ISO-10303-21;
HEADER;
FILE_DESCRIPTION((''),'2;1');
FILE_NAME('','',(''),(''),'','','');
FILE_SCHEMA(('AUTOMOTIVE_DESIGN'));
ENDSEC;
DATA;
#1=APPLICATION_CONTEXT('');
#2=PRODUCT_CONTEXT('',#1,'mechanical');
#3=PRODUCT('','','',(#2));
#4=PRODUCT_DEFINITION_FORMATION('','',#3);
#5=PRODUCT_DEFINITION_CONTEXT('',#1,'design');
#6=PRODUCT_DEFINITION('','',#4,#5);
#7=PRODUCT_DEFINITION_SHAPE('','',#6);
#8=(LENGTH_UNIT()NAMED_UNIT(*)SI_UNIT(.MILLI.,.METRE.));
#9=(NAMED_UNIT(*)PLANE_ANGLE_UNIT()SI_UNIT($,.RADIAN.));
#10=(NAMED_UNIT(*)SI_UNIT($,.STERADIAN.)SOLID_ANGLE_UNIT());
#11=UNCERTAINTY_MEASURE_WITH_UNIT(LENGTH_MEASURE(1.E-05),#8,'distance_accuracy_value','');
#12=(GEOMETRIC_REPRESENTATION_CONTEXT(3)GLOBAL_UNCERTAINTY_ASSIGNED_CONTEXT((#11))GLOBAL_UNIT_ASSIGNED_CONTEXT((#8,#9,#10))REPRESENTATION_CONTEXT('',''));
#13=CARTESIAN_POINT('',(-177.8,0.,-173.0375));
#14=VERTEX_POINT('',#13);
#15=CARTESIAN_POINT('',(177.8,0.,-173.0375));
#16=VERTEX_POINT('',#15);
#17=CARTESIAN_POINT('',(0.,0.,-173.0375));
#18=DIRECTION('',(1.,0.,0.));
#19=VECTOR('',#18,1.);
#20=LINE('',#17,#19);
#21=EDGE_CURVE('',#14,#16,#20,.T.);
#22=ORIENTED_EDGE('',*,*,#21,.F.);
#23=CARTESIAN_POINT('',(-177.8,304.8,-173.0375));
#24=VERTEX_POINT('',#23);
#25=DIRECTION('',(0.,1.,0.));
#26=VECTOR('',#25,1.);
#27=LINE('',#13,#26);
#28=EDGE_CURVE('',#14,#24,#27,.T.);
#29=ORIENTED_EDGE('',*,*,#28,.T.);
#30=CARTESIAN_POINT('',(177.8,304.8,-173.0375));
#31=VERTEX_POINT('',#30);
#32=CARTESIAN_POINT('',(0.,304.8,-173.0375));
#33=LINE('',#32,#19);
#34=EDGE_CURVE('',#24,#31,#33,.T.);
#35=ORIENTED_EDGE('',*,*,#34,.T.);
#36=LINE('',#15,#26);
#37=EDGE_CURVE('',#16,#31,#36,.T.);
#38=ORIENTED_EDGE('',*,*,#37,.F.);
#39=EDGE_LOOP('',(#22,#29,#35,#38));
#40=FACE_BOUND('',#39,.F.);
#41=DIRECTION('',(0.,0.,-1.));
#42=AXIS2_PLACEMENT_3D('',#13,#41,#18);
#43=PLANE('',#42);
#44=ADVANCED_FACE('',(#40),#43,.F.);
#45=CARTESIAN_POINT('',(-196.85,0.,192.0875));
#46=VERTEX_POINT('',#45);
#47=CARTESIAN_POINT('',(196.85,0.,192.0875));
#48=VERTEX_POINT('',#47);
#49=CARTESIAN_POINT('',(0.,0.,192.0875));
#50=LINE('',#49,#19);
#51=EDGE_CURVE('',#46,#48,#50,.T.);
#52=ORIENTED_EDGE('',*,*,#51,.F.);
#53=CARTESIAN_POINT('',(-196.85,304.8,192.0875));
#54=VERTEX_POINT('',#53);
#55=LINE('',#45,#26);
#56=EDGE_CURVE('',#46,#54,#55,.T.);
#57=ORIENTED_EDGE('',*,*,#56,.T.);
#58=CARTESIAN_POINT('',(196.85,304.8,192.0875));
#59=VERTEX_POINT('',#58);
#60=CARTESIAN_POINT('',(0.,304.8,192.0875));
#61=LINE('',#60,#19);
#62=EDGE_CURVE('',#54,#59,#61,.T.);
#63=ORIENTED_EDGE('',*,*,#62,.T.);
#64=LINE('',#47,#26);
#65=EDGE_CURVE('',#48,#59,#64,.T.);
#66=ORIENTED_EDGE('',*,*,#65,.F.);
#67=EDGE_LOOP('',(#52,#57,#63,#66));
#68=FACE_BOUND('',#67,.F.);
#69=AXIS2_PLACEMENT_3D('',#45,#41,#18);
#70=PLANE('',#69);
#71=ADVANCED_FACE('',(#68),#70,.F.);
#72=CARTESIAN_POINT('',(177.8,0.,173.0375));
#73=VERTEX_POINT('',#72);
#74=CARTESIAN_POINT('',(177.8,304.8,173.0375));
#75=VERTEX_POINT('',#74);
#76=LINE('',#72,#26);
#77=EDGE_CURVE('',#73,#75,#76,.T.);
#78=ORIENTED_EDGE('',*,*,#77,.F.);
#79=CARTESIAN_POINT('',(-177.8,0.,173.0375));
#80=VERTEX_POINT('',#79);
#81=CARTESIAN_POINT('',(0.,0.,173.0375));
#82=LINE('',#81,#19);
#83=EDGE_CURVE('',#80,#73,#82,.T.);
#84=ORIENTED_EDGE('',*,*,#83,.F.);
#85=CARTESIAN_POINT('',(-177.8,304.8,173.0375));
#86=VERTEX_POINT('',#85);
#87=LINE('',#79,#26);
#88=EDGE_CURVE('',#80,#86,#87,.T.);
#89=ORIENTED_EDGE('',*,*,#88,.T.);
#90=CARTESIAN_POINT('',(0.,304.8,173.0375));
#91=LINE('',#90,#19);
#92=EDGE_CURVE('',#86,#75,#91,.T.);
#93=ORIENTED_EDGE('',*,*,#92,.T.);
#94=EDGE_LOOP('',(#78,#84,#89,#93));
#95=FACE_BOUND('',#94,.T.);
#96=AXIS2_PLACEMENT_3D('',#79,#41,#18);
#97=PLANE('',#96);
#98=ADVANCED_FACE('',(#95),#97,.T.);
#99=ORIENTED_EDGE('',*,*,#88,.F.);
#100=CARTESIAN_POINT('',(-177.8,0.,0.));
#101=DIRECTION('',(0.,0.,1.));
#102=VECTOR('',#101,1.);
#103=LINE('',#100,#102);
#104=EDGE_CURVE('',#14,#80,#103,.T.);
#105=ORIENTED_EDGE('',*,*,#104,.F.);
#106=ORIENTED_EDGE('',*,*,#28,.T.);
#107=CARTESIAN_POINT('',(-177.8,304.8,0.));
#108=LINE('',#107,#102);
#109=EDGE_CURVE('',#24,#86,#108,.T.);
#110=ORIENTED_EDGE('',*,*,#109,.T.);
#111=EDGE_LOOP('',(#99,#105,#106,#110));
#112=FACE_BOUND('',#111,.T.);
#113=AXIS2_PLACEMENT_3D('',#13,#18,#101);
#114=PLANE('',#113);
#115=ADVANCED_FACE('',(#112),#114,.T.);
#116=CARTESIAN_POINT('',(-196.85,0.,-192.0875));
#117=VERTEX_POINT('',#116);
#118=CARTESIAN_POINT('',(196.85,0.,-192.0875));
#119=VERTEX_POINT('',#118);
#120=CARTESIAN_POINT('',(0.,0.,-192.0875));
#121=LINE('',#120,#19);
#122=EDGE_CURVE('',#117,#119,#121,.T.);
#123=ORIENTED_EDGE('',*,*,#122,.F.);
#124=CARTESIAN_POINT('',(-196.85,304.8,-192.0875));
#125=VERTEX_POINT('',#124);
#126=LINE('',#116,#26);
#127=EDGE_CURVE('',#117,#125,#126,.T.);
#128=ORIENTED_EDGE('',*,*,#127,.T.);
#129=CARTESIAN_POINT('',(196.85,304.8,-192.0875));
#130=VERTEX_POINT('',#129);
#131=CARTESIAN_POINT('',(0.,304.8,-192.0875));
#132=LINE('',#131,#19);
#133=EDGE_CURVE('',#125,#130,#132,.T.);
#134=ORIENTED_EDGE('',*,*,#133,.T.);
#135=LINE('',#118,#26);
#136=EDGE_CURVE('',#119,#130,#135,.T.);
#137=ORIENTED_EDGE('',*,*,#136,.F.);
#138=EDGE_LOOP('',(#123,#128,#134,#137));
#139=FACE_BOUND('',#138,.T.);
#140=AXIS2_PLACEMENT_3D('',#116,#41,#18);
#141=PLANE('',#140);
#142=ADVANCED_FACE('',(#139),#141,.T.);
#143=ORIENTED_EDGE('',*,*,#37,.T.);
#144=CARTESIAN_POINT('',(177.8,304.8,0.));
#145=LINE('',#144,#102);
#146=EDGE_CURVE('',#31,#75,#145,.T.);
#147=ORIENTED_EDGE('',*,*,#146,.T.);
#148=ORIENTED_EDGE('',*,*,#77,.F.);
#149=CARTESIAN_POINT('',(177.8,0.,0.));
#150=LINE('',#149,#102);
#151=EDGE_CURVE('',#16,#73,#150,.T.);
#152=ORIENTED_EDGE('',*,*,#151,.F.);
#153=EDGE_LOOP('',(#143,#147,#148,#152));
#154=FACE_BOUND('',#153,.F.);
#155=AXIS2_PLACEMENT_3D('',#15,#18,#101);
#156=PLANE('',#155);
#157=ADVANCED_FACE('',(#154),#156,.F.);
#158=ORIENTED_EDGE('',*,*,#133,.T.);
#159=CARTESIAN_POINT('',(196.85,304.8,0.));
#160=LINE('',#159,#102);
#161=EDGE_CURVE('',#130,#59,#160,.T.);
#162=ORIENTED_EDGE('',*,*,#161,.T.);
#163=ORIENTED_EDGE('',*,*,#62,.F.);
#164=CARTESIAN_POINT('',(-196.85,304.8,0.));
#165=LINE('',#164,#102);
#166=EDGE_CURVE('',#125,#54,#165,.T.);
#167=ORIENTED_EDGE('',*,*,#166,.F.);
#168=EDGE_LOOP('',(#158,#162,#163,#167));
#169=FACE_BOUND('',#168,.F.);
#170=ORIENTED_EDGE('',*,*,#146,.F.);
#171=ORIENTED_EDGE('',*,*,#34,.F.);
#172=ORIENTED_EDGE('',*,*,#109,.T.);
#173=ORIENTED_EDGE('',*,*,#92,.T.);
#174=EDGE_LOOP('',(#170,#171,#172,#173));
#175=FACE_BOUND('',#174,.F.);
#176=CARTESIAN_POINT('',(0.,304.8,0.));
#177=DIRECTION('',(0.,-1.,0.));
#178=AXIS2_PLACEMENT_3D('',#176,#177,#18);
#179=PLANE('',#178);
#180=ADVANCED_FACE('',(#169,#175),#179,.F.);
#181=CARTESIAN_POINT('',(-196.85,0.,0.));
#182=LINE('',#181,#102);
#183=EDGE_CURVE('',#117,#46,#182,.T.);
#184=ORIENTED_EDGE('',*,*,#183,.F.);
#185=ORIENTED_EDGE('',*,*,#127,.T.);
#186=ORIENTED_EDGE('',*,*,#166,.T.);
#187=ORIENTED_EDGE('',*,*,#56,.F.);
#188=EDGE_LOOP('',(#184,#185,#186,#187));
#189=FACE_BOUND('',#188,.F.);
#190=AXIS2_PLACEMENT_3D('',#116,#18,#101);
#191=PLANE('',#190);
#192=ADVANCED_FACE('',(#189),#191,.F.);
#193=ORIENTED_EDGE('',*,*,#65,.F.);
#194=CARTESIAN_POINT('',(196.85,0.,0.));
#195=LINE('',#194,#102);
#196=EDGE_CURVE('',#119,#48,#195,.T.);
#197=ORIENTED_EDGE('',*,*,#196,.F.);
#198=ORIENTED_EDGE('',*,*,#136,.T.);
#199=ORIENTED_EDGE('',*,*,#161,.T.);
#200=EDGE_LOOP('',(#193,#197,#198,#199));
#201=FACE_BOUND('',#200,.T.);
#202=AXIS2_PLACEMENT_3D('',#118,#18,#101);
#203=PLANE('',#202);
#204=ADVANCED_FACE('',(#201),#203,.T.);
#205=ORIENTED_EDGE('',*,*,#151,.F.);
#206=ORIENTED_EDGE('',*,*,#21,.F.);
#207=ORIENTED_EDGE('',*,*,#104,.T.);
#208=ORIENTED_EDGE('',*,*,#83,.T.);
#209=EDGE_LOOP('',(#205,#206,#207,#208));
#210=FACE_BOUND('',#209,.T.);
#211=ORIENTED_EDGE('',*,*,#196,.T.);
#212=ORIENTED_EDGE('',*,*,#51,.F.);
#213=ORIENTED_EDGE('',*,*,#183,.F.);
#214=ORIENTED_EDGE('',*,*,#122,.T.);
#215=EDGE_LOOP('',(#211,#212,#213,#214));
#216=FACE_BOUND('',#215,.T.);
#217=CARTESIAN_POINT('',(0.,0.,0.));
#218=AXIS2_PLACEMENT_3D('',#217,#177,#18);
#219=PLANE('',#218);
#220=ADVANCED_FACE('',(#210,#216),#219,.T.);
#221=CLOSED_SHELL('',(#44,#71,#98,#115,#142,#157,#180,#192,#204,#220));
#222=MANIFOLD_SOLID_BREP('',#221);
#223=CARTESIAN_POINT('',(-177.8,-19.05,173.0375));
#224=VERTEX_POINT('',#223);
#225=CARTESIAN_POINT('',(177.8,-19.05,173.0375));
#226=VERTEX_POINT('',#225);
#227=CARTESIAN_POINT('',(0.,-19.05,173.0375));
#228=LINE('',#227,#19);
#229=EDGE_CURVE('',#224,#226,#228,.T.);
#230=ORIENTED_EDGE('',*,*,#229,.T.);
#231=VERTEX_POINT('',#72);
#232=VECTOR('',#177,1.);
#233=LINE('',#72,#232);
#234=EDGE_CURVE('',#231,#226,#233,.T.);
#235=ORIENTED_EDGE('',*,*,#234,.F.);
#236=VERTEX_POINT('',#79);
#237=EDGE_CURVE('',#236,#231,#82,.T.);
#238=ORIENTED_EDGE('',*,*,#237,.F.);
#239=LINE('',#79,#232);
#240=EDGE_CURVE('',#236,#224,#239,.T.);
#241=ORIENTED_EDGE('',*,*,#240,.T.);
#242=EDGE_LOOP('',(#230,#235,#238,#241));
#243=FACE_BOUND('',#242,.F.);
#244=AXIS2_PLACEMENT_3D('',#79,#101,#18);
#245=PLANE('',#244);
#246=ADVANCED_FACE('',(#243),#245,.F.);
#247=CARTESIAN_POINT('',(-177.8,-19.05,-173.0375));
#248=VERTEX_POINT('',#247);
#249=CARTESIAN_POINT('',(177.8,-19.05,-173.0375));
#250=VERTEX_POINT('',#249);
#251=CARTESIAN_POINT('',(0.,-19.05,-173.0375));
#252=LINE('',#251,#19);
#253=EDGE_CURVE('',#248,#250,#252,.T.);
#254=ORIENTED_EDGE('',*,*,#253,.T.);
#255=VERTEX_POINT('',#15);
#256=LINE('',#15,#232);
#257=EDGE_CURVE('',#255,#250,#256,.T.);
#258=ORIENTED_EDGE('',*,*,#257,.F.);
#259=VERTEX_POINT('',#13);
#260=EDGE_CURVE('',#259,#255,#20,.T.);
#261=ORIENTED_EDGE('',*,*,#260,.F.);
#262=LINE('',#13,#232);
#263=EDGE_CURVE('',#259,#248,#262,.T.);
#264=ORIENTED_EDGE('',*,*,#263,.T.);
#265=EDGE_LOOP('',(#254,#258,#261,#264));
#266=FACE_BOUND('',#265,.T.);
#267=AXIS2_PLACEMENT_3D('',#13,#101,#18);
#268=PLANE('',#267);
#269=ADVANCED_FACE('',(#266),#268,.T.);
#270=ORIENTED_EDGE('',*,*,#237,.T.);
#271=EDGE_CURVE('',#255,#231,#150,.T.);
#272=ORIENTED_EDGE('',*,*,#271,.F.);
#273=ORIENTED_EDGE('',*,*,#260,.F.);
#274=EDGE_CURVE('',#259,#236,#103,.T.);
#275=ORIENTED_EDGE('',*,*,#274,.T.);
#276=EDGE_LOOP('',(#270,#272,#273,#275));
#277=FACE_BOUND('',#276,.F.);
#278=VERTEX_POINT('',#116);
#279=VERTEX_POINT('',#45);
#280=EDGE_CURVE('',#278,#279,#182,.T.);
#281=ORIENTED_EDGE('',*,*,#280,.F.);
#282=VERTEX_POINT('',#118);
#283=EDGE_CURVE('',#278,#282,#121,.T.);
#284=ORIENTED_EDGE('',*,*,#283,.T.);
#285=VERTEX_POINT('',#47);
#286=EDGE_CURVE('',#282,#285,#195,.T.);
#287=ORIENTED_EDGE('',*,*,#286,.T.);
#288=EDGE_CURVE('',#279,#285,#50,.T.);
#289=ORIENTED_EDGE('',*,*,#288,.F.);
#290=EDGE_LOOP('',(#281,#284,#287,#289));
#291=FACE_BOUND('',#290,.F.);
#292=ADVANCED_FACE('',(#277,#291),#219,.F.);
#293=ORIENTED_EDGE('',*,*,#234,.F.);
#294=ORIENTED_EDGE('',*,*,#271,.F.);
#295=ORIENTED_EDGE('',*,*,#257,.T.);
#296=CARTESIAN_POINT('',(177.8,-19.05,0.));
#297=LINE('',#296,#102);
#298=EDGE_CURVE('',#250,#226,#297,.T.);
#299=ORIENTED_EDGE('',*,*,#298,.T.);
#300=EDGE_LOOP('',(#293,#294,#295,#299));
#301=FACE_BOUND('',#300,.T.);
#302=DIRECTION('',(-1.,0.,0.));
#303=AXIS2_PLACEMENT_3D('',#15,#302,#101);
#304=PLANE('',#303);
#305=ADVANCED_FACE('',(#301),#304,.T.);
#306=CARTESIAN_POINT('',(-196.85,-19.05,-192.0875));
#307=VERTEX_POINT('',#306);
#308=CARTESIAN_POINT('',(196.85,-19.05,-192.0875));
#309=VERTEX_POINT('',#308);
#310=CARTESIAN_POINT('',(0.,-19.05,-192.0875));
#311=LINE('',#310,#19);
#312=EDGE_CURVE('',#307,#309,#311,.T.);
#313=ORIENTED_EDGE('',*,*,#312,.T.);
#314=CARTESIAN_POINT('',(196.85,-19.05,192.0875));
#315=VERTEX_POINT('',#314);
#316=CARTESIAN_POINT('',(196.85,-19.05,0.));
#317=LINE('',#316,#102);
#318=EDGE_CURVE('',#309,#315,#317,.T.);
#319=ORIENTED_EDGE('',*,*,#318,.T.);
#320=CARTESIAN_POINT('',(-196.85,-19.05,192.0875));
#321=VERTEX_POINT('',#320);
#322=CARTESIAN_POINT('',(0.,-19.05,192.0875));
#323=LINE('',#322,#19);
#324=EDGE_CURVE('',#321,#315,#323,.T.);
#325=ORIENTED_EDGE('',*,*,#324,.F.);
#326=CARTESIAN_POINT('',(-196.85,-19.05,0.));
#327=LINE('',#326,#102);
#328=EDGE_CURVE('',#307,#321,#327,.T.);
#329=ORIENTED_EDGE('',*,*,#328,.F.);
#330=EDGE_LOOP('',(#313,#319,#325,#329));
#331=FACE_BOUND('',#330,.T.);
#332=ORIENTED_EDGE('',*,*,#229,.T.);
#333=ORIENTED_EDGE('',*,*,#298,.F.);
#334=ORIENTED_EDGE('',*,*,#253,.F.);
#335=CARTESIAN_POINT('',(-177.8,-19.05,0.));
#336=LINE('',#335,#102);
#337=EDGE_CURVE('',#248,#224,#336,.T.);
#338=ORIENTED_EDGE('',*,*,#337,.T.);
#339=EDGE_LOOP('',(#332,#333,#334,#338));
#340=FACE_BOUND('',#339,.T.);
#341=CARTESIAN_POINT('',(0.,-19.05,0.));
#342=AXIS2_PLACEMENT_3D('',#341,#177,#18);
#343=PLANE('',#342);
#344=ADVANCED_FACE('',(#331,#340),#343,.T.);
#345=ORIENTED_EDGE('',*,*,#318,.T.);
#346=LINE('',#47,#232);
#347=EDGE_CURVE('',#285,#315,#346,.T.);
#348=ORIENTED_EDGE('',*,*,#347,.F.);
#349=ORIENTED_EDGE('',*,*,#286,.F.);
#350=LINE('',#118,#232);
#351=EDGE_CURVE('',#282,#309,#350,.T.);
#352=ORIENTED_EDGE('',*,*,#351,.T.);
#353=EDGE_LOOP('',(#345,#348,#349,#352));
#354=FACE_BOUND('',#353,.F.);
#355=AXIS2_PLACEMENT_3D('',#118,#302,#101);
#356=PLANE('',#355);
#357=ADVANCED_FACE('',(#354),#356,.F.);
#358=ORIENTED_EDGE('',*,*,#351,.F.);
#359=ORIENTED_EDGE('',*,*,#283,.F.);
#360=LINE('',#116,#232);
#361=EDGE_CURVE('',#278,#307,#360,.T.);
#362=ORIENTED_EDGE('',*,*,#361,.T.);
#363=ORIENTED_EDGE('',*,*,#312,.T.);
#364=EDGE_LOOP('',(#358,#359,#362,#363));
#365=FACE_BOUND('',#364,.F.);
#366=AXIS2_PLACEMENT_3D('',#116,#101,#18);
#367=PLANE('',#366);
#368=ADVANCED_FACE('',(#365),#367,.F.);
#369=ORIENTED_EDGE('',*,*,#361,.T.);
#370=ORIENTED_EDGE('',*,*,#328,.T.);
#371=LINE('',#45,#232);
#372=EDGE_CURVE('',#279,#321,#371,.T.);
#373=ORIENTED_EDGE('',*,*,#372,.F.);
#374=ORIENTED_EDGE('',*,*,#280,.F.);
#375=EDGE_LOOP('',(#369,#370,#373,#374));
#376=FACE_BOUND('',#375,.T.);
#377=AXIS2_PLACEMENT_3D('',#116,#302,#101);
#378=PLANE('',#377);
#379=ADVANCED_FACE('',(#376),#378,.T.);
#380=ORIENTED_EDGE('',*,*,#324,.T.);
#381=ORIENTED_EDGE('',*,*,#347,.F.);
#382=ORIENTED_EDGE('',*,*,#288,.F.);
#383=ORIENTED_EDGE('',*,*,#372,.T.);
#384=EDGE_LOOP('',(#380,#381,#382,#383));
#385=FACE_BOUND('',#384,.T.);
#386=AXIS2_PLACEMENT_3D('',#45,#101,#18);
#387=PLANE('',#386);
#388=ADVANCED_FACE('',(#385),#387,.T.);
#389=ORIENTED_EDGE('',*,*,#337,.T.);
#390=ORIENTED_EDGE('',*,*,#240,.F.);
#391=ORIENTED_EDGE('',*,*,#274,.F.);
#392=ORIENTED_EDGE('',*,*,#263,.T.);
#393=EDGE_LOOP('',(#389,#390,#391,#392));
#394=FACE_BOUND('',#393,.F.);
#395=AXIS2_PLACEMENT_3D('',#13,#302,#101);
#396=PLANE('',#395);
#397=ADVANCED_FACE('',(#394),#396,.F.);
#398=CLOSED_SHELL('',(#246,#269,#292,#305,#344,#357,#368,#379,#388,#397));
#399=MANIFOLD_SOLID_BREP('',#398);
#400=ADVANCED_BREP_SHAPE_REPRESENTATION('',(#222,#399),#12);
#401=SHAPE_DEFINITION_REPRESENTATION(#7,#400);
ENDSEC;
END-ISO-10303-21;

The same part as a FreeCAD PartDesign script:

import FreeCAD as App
import Part
import Sketcher
from FreeCAD import Vector
Q = App.Units.Quantity


def add_polygon(sketch, points):
    """Adds a closed chain of lines whose ends are joined by coincident constraints."""
    first, n = sketch.GeometryCount, len(points)
    for a, b in zip(points, points[1:] + points[:1]):
        sketch.addGeometry(Part.LineSegment(App.Vector(*a, 0), App.Vector(*b, 0)), False)
    for i in range(n):
        sketch.addConstraint(Sketcher.Constraint("Coincident", first + i, 2, first + (i + 1) % n, 1))

doc = App.newDocument("Part")
body = doc.addObject("PartDesign::Body", "Body")

# Sketch on XZ plane
sketch1 = body.newObject("Sketcher::SketchObject", "Sketch")
sketch1.AttachmentSupport = (doc.getObject("XZ_Plane"), [""])
sketch1.MapMode = "FlatFace"
add_polygon(sketch1, [(-197, 192), (-197, -192), (197, -192), (197, 192)])  # lines 0-3
add_polygon(sketch1, [(178, -173), (-178, -173), (-178, 173), (178, 173)])  # lines 4-7
sketch1.addConstraint([
    Sketcher.Constraint("Vertical", 0),
    Sketcher.Constraint("Horizontal", 1),
    Sketcher.Constraint("Vertical", 2),
    Sketcher.Constraint("Horizontal", 3),
    Sketcher.Constraint("Horizontal", 4),
    Sketcher.Constraint("Vertical", 5),
    Sketcher.Constraint("Horizontal", 6),
    Sketcher.Constraint("Vertical", 7),
    Sketcher.Constraint("Symmetric", 0, 2, 2, 2, -1, 1),
    Sketcher.Constraint("Symmetric", 4, 2, 6, 2, -1, 1),
    Sketcher.Constraint("DistanceX", 4, 2, 4, 1, Q("14 in")),
    Sketcher.Constraint("DistanceX", 1, 1, 1, 2, Q("15.5 in")),
    Sketcher.Constraint("DistanceY", 0, 2, 0, 1, Q("15.125 in")),
    Sketcher.Constraint("DistanceY", 5, 1, 5, 2, Q("13.625 in")),
])
pad1 = body.newObject("PartDesign::Pad", "Pad")
pad1.Profile = sketch1
pad1.Length = Q("12 in")
pad1.Reversed = True
body2 = doc.addObject("PartDesign::Body", "Body001")

# Sketch on XZ plane
sketch2 = body2.newObject("Sketcher::SketchObject", "Sketch001")
sketch2.AttachmentSupport = (doc.getObject("XZ_Plane001"), [""])
sketch2.MapMode = "FlatFace"
add_polygon(sketch2, [(-197, 192), (-197, -192), (197, -192), (197, 192)])  # lines 0-3
add_polygon(sketch2, [(178, -173), (-178, -173), (-178, 173), (178, 173)])  # lines 4-7
sketch2.addConstraint([
    Sketcher.Constraint("Vertical", 0),
    Sketcher.Constraint("Horizontal", 1),
    Sketcher.Constraint("Vertical", 2),
    Sketcher.Constraint("Horizontal", 3),
    Sketcher.Constraint("Horizontal", 4),
    Sketcher.Constraint("Vertical", 5),
    Sketcher.Constraint("Horizontal", 6),
    Sketcher.Constraint("Vertical", 7),
    Sketcher.Constraint("Symmetric", 0, 2, 2, 2, -1, 1),
    Sketcher.Constraint("Symmetric", 4, 2, 6, 2, -1, 1),
    Sketcher.Constraint("DistanceX", 4, 2, 4, 1, Q("14 in")),
    Sketcher.Constraint("DistanceX", 1, 1, 1, 2, Q("15.5 in")),
    Sketcher.Constraint("DistanceY", 0, 2, 0, 1, Q("15.125 in")),
    Sketcher.Constraint("DistanceY", 5, 1, 5, 2, Q("13.625 in")),
])
pad2 = body2.newObject("PartDesign::Pad", "Pad001")
pad2.Profile = sketch2
pad2.Length = Q("0.75 in")

doc.recompute()
